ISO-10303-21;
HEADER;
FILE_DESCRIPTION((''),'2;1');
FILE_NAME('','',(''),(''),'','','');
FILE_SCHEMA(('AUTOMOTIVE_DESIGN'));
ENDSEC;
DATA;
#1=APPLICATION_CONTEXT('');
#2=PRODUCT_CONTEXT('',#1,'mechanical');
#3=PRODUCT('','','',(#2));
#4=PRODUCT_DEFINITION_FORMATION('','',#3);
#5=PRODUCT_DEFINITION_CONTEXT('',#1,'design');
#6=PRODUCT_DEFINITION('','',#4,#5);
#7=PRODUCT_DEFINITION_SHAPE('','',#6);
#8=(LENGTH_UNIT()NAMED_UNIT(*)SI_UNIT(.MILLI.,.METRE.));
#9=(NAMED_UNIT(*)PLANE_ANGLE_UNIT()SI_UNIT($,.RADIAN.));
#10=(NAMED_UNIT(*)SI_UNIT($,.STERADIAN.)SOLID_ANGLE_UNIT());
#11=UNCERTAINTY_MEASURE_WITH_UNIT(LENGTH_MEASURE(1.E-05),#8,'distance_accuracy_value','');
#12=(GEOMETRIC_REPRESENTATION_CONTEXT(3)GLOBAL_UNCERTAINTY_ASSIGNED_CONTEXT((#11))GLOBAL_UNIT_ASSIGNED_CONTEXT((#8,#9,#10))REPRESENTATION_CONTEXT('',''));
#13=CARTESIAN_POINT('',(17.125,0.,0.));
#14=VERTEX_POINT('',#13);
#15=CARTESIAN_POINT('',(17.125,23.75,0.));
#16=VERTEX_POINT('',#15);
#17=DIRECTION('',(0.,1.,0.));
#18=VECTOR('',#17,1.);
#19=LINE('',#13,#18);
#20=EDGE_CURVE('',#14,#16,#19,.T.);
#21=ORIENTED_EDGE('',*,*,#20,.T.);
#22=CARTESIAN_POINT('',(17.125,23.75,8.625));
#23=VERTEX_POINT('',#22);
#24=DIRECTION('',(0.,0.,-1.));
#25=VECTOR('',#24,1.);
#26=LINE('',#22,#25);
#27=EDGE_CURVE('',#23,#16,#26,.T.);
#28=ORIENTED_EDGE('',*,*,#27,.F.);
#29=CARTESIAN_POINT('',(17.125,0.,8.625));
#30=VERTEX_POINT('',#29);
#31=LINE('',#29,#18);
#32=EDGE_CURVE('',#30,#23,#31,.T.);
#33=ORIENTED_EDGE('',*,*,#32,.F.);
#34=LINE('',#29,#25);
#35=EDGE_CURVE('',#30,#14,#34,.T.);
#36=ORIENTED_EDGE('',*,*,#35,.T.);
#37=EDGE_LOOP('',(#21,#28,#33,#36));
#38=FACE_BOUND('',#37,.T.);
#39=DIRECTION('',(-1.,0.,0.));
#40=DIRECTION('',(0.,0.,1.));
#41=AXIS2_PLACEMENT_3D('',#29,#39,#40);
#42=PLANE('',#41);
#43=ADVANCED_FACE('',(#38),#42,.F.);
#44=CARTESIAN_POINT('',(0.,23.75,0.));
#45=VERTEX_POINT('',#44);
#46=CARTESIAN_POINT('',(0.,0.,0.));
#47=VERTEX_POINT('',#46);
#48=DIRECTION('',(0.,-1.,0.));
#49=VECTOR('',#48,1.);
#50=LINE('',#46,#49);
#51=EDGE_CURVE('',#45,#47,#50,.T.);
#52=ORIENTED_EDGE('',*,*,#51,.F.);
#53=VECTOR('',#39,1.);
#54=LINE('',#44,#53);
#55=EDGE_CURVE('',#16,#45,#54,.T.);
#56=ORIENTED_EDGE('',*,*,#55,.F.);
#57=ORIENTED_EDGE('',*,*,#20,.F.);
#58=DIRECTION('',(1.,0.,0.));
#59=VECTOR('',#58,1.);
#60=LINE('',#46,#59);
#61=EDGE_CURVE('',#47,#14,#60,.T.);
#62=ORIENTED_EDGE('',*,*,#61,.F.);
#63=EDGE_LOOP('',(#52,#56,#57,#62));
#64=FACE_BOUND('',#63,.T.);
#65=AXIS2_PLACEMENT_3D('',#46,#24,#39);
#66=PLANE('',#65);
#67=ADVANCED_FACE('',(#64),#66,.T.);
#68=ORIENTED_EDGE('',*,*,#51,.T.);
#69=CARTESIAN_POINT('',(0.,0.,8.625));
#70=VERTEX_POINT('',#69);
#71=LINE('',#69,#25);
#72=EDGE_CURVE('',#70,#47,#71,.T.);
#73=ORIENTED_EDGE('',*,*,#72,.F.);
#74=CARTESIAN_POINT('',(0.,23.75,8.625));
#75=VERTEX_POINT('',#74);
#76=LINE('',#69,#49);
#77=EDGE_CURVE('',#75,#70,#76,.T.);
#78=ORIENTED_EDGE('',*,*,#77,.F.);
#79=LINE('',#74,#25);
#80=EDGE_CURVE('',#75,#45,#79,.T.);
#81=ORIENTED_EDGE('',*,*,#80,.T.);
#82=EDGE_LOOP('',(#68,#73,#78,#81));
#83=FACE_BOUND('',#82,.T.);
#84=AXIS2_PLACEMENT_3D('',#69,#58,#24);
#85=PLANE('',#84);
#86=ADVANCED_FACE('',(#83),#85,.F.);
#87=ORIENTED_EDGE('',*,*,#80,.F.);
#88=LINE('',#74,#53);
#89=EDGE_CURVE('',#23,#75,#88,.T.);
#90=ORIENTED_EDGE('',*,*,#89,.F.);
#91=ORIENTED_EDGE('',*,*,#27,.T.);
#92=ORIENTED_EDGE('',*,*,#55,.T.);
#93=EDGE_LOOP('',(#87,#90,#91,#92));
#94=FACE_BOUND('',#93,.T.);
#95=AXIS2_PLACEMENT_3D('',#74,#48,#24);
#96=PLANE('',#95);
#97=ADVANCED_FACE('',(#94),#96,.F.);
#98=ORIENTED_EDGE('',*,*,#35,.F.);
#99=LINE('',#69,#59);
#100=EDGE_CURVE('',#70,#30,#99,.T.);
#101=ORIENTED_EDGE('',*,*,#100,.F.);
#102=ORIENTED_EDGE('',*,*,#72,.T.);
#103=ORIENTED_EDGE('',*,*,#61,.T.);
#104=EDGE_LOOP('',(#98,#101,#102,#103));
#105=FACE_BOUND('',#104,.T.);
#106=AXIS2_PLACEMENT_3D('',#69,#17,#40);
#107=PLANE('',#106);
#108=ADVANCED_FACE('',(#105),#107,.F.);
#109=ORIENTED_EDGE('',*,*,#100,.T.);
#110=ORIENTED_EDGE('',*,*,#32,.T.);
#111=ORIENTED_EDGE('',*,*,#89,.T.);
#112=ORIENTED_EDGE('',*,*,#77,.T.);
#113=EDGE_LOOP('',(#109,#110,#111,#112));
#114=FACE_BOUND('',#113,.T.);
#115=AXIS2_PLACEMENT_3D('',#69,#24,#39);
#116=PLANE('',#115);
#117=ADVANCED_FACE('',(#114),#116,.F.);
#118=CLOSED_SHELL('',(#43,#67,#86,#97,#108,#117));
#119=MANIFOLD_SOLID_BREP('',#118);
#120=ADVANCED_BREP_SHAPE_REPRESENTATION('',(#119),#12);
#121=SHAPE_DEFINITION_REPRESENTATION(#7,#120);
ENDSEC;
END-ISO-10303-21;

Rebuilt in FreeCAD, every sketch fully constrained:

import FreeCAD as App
import Part
import Sketcher
from FreeCAD import Vector

doc = App.newDocument("Part")
body = doc.addObject("PartDesign::Body", "Body")

# Sketch on XY plane
sketch1 = body.newObject("Sketcher::SketchObject", "Sketch")
sketch1.AttachmentSupport = (doc.getObject("XY_Plane"), [""])
sketch1.MapMode = "FlatFace"
sketch1.addGeometry([
    Part.LineSegment(Vector(0, 23.75, 0), Vector(0, 0, 0)),
    Part.LineSegment(Vector(0, 0, 0), Vector(17.125, 0, 0)),
    Part.LineSegment(Vector(17.125, 0, 0), Vector(17.125, 23.75, 0)),
    Part.LineSegment(Vector(17.125, 23.75, 0), Vector(0, 23.75, 0)),
], False)
sketch1.addConstraint([
    Sketcher.Constraint("Coincident", 0, 2, 1, 1),
    Sketcher.Constraint("Coincident", 1, 2, 2, 1),
    Sketcher.Constraint("Coincident", 2, 2, 3, 1),
    Sketcher.Constraint("Coincident", 3, 2, 0, 1),
    Sketcher.Constraint("Vertical", 0),
    Sketcher.Constraint("Horizontal", 1),
    Sketcher.Constraint("Vertical", 2),
    Sketcher.Constraint("Horizontal", 3),
    Sketcher.Constraint("Coincident", 0, 2, -1, 1),
    Sketcher.Constraint("DistanceY", 0, 2, 0, 1, 23.75),
    Sketcher.Constraint("DistanceX", 1, 1, 1, 2, 17.125),
])
pad1 = body.newObject("PartDesign::Pad", "Pad")
pad1.Profile = sketch1
pad1.Length = 8.625

doc.recompute()
